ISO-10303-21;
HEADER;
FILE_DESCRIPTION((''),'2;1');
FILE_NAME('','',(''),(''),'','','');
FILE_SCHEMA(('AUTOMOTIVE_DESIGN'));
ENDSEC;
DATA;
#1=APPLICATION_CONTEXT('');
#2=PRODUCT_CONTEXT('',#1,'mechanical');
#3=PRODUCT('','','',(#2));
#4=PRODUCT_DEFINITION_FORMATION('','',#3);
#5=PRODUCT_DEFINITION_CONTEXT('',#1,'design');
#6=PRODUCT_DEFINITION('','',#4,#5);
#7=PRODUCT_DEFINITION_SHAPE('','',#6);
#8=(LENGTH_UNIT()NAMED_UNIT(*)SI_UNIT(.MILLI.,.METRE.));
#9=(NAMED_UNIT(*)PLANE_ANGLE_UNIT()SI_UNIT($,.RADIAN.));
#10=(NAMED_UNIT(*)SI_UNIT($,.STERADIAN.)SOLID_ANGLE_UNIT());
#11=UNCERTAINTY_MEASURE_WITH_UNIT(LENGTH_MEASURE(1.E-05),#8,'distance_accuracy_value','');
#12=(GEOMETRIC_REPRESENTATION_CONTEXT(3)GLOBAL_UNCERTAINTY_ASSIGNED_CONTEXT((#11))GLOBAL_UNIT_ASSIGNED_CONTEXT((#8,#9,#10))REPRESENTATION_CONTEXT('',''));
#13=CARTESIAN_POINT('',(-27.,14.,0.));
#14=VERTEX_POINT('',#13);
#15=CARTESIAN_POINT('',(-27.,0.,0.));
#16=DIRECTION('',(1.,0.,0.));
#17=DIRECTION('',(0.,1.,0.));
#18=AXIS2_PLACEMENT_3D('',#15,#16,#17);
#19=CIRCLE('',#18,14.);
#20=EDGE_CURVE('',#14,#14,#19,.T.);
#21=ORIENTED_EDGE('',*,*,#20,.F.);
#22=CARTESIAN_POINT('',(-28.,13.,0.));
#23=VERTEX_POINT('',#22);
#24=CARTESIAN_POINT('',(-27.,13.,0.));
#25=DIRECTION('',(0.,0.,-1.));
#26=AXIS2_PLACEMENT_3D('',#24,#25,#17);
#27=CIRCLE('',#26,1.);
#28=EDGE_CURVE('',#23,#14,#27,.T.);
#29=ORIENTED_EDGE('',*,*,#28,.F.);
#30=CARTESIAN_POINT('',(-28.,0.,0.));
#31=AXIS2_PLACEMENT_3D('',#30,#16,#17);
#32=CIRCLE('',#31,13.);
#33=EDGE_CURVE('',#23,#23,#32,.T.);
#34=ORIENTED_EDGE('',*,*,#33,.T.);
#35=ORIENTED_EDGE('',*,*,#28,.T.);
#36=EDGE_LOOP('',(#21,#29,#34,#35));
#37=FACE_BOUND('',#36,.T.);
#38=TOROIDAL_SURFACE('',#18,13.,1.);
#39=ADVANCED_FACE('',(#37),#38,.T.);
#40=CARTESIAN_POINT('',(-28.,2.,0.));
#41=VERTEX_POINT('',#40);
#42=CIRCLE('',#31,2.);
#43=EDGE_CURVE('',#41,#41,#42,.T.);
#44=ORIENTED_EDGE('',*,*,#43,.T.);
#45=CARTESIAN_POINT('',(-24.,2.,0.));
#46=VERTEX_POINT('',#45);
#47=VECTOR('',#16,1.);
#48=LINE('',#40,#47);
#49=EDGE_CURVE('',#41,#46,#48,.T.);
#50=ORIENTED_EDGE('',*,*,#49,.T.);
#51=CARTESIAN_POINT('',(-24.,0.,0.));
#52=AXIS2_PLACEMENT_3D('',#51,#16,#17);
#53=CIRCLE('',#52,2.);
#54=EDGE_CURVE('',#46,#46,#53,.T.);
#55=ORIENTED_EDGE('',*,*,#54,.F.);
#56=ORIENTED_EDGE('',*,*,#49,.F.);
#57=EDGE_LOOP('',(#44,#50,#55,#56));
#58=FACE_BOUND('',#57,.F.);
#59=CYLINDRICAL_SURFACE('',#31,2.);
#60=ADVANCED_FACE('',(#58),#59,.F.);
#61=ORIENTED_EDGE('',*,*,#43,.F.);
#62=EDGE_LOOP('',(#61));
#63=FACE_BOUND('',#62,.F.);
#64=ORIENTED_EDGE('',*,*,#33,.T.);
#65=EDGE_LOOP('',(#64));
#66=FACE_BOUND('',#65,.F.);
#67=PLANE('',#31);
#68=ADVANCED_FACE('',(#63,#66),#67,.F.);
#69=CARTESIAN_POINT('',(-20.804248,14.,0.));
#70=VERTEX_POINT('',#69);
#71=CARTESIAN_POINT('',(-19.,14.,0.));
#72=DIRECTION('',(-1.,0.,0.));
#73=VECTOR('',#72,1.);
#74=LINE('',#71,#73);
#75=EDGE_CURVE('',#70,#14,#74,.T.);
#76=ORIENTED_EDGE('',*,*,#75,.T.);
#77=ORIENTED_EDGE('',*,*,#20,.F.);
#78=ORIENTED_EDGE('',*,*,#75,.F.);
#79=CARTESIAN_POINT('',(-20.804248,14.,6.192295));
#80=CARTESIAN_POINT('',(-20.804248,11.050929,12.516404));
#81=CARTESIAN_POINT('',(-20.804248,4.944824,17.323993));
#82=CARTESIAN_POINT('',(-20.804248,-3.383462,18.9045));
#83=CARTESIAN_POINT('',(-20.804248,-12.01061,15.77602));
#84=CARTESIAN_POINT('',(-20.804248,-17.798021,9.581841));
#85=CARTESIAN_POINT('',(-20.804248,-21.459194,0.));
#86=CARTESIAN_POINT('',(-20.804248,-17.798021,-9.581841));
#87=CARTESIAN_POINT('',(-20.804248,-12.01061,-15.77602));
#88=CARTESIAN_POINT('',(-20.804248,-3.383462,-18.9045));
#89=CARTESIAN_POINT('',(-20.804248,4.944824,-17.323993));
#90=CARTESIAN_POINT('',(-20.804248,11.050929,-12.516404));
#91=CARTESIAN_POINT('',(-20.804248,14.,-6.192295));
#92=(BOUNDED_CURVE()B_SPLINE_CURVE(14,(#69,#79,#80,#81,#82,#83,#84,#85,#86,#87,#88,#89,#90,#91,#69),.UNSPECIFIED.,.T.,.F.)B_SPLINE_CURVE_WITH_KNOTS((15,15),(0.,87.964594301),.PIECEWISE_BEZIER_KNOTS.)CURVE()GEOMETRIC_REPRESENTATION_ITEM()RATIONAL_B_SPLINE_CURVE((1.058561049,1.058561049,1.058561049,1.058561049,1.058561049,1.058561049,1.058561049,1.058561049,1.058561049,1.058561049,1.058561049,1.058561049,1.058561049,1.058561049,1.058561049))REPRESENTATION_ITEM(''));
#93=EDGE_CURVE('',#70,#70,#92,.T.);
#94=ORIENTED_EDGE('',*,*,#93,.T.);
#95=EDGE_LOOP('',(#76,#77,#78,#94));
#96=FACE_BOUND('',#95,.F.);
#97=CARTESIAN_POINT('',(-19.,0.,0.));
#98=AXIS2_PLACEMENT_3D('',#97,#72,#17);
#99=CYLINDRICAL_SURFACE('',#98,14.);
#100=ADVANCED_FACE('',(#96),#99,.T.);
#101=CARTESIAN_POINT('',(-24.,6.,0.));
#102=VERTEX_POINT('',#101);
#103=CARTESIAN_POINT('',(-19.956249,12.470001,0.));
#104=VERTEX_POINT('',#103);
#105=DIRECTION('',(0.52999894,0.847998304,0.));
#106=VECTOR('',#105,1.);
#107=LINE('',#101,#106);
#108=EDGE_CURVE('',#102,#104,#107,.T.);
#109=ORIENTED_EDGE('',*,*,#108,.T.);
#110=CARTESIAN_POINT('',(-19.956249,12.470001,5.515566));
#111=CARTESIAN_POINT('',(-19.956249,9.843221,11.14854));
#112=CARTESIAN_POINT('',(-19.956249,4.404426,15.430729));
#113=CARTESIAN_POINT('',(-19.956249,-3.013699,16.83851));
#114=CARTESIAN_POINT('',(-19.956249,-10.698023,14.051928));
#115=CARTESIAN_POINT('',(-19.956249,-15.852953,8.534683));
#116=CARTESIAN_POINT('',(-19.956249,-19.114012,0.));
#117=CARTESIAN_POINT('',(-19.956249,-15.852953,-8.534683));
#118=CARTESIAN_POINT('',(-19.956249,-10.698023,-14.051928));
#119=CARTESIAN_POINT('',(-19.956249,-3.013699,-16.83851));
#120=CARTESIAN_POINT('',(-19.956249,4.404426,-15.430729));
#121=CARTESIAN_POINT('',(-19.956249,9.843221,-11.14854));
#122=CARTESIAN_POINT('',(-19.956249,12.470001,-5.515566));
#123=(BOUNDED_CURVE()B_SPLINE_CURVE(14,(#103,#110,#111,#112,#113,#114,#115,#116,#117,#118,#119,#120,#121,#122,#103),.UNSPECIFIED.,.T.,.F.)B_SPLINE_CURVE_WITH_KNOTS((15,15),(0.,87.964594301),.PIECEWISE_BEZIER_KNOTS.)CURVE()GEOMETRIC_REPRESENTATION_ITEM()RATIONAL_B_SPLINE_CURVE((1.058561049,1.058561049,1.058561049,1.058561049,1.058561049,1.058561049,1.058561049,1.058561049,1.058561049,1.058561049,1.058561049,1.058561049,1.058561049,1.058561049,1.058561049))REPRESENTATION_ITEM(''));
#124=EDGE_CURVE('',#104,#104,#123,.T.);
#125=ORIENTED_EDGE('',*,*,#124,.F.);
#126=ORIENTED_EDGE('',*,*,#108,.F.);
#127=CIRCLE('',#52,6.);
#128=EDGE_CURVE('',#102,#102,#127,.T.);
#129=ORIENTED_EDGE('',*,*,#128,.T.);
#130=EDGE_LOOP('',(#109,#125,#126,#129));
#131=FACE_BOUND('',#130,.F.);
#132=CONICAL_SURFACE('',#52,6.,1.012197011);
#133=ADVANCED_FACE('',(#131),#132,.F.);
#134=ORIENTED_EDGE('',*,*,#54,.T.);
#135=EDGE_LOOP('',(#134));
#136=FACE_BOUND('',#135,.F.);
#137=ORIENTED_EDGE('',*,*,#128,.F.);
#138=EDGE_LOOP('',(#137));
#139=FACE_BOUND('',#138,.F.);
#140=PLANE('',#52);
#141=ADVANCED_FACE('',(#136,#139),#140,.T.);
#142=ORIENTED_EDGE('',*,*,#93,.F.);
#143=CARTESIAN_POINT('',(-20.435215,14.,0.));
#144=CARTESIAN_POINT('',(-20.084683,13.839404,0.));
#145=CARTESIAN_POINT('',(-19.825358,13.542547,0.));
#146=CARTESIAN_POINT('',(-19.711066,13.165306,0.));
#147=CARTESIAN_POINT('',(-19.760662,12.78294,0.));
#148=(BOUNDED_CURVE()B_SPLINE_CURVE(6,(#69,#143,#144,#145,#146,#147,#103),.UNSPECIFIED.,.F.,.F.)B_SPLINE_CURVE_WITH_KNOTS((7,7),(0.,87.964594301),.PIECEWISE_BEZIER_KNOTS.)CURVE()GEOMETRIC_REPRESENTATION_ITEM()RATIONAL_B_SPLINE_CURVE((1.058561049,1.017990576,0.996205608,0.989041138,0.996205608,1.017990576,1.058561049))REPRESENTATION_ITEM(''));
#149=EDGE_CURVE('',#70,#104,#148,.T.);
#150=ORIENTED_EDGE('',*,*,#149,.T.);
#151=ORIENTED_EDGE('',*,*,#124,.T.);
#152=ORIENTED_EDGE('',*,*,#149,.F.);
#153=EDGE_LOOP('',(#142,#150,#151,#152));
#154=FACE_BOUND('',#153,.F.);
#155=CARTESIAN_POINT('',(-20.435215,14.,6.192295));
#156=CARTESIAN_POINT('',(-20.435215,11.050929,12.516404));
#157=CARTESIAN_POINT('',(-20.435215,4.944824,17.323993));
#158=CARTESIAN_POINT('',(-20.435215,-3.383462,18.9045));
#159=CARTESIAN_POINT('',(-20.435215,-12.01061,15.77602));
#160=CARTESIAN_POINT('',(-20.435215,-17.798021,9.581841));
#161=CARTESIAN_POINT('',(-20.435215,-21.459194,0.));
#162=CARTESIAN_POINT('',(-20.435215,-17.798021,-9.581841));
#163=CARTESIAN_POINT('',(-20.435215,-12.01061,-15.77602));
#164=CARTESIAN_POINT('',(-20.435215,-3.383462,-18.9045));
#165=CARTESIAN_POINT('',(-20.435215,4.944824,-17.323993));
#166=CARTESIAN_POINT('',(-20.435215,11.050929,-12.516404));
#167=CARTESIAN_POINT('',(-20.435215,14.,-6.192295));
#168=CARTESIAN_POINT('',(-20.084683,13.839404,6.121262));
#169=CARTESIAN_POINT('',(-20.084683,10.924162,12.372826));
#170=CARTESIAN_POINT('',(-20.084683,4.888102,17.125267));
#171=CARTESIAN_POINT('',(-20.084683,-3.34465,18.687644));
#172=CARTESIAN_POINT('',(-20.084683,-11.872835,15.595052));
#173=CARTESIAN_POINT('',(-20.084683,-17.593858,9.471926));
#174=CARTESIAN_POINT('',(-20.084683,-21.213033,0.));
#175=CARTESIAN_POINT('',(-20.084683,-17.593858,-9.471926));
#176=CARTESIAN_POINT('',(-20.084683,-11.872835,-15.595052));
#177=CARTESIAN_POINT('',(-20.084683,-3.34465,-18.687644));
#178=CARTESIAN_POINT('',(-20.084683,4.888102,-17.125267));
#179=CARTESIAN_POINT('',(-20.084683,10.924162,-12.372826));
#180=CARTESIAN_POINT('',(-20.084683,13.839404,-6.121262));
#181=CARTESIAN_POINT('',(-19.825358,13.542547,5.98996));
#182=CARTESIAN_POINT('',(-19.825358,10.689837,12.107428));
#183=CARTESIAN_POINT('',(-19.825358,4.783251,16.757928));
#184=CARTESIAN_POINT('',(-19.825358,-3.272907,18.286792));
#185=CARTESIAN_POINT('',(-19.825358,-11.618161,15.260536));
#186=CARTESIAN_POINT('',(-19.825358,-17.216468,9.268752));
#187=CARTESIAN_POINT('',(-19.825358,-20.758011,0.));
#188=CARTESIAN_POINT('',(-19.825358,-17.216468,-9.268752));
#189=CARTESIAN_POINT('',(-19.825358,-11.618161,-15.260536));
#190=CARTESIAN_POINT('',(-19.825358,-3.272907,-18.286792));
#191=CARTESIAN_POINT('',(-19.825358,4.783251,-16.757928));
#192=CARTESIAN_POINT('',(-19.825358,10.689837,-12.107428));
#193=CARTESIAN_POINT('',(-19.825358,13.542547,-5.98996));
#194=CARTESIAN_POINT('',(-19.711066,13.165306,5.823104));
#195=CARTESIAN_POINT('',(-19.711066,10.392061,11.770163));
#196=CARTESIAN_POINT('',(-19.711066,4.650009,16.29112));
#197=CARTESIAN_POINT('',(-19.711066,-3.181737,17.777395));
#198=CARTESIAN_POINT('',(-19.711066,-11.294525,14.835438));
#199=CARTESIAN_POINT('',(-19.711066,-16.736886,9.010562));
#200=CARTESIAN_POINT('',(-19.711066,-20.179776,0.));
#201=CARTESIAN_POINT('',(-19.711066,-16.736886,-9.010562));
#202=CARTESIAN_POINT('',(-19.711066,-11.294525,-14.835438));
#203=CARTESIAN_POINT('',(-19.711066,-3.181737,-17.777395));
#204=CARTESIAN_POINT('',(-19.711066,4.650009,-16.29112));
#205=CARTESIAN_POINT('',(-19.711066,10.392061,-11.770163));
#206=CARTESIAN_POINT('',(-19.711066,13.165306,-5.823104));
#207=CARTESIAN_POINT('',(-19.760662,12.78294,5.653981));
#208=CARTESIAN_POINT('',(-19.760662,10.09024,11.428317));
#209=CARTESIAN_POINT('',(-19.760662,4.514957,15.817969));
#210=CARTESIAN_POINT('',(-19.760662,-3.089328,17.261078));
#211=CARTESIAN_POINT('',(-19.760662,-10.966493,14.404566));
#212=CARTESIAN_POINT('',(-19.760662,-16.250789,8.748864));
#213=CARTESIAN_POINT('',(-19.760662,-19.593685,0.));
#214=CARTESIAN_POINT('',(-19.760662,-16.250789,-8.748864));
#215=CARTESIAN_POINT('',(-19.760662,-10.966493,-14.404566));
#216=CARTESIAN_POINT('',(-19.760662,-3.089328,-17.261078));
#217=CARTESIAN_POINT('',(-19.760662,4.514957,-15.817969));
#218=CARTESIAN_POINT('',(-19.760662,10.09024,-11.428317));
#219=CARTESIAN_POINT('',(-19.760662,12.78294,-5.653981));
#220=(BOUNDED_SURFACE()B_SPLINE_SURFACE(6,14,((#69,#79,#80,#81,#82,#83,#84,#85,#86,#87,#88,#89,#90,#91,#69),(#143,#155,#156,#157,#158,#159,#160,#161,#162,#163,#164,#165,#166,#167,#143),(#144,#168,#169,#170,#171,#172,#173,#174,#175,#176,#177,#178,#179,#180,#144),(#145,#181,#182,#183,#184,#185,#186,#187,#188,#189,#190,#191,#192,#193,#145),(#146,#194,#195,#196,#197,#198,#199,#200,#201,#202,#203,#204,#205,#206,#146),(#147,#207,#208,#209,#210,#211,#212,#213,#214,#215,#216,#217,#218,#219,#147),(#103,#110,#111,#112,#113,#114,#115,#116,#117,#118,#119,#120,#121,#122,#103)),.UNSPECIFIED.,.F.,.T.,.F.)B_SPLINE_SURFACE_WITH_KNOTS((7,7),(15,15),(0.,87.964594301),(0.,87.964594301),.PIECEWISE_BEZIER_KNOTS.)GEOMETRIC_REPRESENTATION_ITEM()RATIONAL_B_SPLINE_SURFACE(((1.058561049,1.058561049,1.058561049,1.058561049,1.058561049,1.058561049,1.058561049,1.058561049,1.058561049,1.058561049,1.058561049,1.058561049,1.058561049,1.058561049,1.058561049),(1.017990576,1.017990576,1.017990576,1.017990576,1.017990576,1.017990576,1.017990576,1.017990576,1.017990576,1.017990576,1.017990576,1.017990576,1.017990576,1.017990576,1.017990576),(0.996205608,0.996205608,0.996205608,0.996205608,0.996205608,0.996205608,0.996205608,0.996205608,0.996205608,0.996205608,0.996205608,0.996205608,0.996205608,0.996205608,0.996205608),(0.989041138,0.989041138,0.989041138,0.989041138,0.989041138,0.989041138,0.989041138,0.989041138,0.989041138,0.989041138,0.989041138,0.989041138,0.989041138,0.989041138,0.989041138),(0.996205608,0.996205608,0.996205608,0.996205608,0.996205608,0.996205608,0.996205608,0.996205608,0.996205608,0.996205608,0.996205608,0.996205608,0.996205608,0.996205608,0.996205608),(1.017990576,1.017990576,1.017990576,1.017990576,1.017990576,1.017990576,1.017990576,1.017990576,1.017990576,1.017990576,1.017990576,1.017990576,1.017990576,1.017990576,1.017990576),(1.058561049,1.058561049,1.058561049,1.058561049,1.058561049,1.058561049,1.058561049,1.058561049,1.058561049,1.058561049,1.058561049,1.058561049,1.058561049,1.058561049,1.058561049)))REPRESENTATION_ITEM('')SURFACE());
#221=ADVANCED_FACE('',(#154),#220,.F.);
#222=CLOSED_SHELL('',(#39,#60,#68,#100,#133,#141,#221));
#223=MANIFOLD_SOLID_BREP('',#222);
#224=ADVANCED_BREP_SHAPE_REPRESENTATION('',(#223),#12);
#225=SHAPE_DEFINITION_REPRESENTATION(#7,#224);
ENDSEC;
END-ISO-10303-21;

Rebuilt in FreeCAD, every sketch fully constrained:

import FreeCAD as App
import Part
import Sketcher


def edges_at(feature, points):
    """Names of the edges that pass closest to the given points."""
    edges = feature.Shape.Edges
    near = lambda p: min(range(len(edges)), key=lambda i: edges[i].distToShape(Part.Vertex(*p))[0])
    return sorted({f"Edge{near(p) + 1}" for p in points})

doc = App.newDocument("Part")
body = doc.addObject("PartDesign::Body", "Body")

sketch1 = doc.addObject("Sketcher::SketchObject", "Sketch")
body.addObject(sketch1)
sketch1.AttachmentSupport = (doc.XY_Plane, [""])
sketch1.MapMode = "FlatFace"
sketch1.addGeometry([
    Part.LineSegment(App.Vector(2, 14, 0), App.Vector(2, 2, 0)),
    Part.LineSegment(App.Vector(2, 2, 0), App.Vector(6, 2, 0)),
    Part.LineSegment(App.Vector(6, 2, 0), App.Vector(6, 6, 0)),
    Part.LineSegment(App.Vector(6, 6, 0), App.Vector(11, 14, 0)),
    Part.LineSegment(App.Vector(11, 14, 0), App.Vector(2, 14, 0)),
], False)
sketch1.addConstraint([
    Sketcher.Constraint("Coincident", 0, 2, 1, 1),
    Sketcher.Constraint("Coincident", 1, 2, 2, 1),
    Sketcher.Constraint("Coincident", 2, 2, 3, 1),
    Sketcher.Constraint("Coincident", 3, 2, 4, 1),
    Sketcher.Constraint("Coincident", 4, 2, 0, 1),
    Sketcher.Constraint("Vertical", 0),
    Sketcher.Constraint("Horizontal", 1),
    Sketcher.Constraint("Vertical", 2),
    Sketcher.Constraint("Horizontal", 4),
    Sketcher.Constraint("Equal", 1, 2),
    Sketcher.Constraint("DistanceX", 1, 1, 1, 2, 4.0),
    Sketcher.Constraint("DistanceX", 4, 2, 4, 1, 9.0),
    Sketcher.Constraint("DistanceY", 0, 2, 0, 1, 12.0),
    Sketcher.Constraint("DistanceX", -1, 1, 0, 2, 2.0),
    Sketcher.Constraint("DistanceY", -1, 1, 0, 2, 2.0),
])
revolution = doc.addObject("PartDesign::Revolution", "Revolution")
body.addObject(revolution)
revolution.Profile = sketch1
revolution.ReferenceAxis = (sketch1, ["H_Axis"])
revolution.Angle = 360
doc.recompute()

fillet = doc.addObject("PartDesign::Fillet", "Fillet")
body.addObject(fillet)
fillet.Base = (revolution, edges_at(revolution, [(2, -14, 0)]))
fillet.Radius = 1
doc.recompute()

fillet2 = doc.addObject("PartDesign::Fillet", "Fillet001")
body.addObject(fillet2)
fillet2.Base = (fillet, edges_at(fillet, [(11, -14, 0)]))
fillet2.Radius = 1
body2 = doc.addObject("PartDesign::Body", "Body001")
doc.recompute()

body.Placement = App.Placement(App.Vector(-30, 0, 0), App.Rotation(App.Vector(0, 0, 1), 0))
boolean = doc.addObject("PartDesign::Boolean", "Boolean")
body2.addObject(boolean)
boolean.Type = "Fuse"
boolean.addObjects([body])

doc.recompute()
